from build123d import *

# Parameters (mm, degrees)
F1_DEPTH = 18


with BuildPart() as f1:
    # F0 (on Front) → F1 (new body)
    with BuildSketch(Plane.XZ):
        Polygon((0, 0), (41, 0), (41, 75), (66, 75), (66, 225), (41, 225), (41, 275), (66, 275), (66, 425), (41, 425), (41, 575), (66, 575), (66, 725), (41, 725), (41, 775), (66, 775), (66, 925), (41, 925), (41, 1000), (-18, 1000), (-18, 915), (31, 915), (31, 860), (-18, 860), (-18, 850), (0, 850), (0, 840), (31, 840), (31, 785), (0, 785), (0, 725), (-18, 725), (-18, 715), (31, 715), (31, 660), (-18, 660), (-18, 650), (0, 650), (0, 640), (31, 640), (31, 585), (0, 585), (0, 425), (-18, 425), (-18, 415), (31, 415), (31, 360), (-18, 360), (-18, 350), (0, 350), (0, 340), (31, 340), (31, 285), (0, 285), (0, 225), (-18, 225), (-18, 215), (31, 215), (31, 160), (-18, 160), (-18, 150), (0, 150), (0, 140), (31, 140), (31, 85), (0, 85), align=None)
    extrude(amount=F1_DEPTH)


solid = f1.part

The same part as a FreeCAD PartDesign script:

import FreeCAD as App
import Part
import Sketcher

doc = App.newDocument("Part")
body = doc.addObject("PartDesign::Body", "Body")

# Sketch on XZ plane
sketch1 = body.newObject("Sketcher::SketchObject", "Sketch")
sketch1.AttachmentSupport = (doc.getObject("XZ_Plane"), [""])
sketch1.MapMode = "FlatFace"
sketch1.addGeometry([
    Part.LineSegment(App.Vector(0, 0, 0), App.Vector(41, 0, 0)),  # 0
    Part.LineSegment(App.Vector(41, 0, 0), App.Vector(41, 75, 0)),  # 1
    Part.LineSegment(App.Vector(41, 75, 0), App.Vector(66, 75, 0)),  # 2
    Part.LineSegment(App.Vector(66, 75, 0), App.Vector(66, 225, 0)),  # 3
    Part.LineSegment(App.Vector(66, 225, 0), App.Vector(41, 225, 0)),  # 4
    Part.LineSegment(App.Vector(41, 225, 0), App.Vector(41, 275, 0)),  # 5
    Part.LineSegment(App.Vector(41, 275, 0), App.Vector(66, 275, 0)),  # 6
    Part.LineSegment(App.Vector(66, 275, 0), App.Vector(66, 425, 0)),  # 7
    Part.LineSegment(App.Vector(66, 425, 0), App.Vector(41, 425, 0)),  # 8
    Part.LineSegment(App.Vector(41, 425, 0), App.Vector(41, 575, 0)),  # 9
    Part.LineSegment(App.Vector(41, 575, 0), App.Vector(66, 575, 0)),  # 10
    Part.LineSegment(App.Vector(66, 575, 0), App.Vector(66, 725, 0)),  # 11
    Part.LineSegment(App.Vector(66, 725, 0), App.Vector(41, 725, 0)),  # 12
    Part.LineSegment(App.Vector(41, 725, 0), App.Vector(41, 775, 0)),  # 13
    Part.LineSegment(App.Vector(41, 775, 0), App.Vector(66, 775, 0)),  # 14
    Part.LineSegment(App.Vector(66, 775, 0), App.Vector(66, 925, 0)),  # 15
    Part.LineSegment(App.Vector(66, 925, 0), App.Vector(41, 925, 0)),  # 16
    Part.LineSegment(App.Vector(41, 925, 0), App.Vector(41, 1000, 0)),  # 17
    Part.LineSegment(App.Vector(41, 1000, 0), App.Vector(-18, 1000, 0)),  # 18
    Part.LineSegment(App.Vector(-18, 1000, 0), App.Vector(-18, 915, 0)),  # 19
    Part.LineSegment(App.Vector(-18, 915, 0), App.Vector(31, 915, 0)),  # 20
    Part.LineSegment(App.Vector(31, 915, 0), App.Vector(31, 860, 0)),  # 21
    Part.LineSegment(App.Vector(31, 860, 0), App.Vector(-18, 860, 0)),  # 22
    Part.LineSegment(App.Vector(-18, 860, 0), App.Vector(-18, 850, 0)),  # 23
    Part.LineSegment(App.Vector(-18, 850, 0), App.Vector(0, 850, 0)),  # 24
    Part.LineSegment(App.Vector(0, 850, 0), App.Vector(0, 840, 0)),  # 25
    Part.LineSegment(App.Vector(0, 840, 0), App.Vector(31, 840, 0)),  # 26
    Part.LineSegment(App.Vector(31, 840, 0), App.Vector(31, 785, 0)),  # 27
    Part.LineSegment(App.Vector(31, 785, 0), App.Vector(0, 785, 0)),  # 28
    Part.LineSegment(App.Vector(0, 785, 0), App.Vector(0, 725, 0)),  # 29
    Part.LineSegment(App.Vector(0, 725, 0), App.Vector(-18, 725, 0)),  # 30
    Part.LineSegment(App.Vector(-18, 725, 0), App.Vector(-18, 715, 0)),  # 31
    Part.LineSegment(App.Vector(-18, 715, 0), App.Vector(31, 715, 0)),  # 32
    Part.LineSegment(App.Vector(31, 715, 0), App.Vector(31, 660, 0)),  # 33
    Part.LineSegment(App.Vector(31, 660, 0), App.Vector(-18, 660, 0)),  # 34
    Part.LineSegment(App.Vector(-18, 660, 0), App.Vector(-18, 650, 0)),  # 35
    Part.LineSegment(App.Vector(-18, 650, 0), App.Vector(0, 650, 0)),  # 36
    Part.LineSegment(App.Vector(0, 650, 0), App.Vector(0, 640, 0)),  # 37
    Part.LineSegment(App.Vector(0, 640, 0), App.Vector(31, 640, 0)),  # 38
    Part.LineSegment(App.Vector(31, 640, 0), App.Vector(31, 585, 0)),  # 39
    Part.LineSegment(App.Vector(31, 585, 0), App.Vector(0, 585, 0)),  # 40
    Part.LineSegment(App.Vector(0, 585, 0), App.Vector(0, 425, 0)),  # 41
    Part.LineSegment(App.Vector(0, 425, 0), App.Vector(-18, 425, 0)),  # 42
    Part.LineSegment(App.Vector(-18, 425, 0), App.Vector(-18, 415, 0)),  # 43
    Part.LineSegment(App.Vector(-18, 415, 0), App.Vector(31, 415, 0)),  # 44
    Part.LineSegment(App.Vector(31, 415, 0), App.Vector(31, 360, 0)),  # 45
    Part.LineSegment(App.Vector(31, 360, 0), App.Vector(-18, 360, 0)),  # 46
    Part.LineSegment(App.Vector(-18, 360, 0), App.Vector(-18, 350, 0)),  # 47
    Part.LineSegment(App.Vector(-18, 350, 0), App.Vector(0, 350, 0)),  # 48
    Part.LineSegment(App.Vector(0, 350, 0), App.Vector(0, 340, 0)),  # 49
    Part.LineSegment(App.Vector(0, 340, 0), App.Vector(31, 340, 0)),  # 50
    Part.LineSegment(App.Vector(31, 340, 0), App.Vector(31, 285, 0)),  # 51
    Part.LineSegment(App.Vector(31, 285, 0), App.Vector(0, 285, 0)),  # 52
    Part.LineSegment(App.Vector(0, 285, 0), App.Vector(0, 225, 0)),  # 53
    Part.LineSegment(App.Vector(0, 225, 0), App.Vector(-18, 225, 0)),  # 54
    Part.LineSegment(App.Vector(-18, 225, 0), App.Vector(-18, 215, 0)),  # 55
    Part.LineSegment(App.Vector(-18, 215, 0), App.Vector(31, 215, 0)),  # 56
    Part.LineSegment(App.Vector(31, 215, 0), App.Vector(31, 160, 0)),  # 57
    Part.LineSegment(App.Vector(31, 160, 0), App.Vector(-18, 160, 0)),  # 58
    Part.LineSegment(App.Vector(-18, 160, 0), App.Vector(-18, 150, 0)),  # 59
    Part.LineSegment(App.Vector(-18, 150, 0), App.Vector(0, 150, 0)),  # 60
    Part.LineSegment(App.Vector(0, 150, 0), App.Vector(0, 140, 0)),  # 61
    Part.LineSegment(App.Vector(0, 140, 0), App.Vector(31, 140, 0)),  # 62
    Part.LineSegment(App.Vector(31, 140, 0), App.Vector(31, 85, 0)),  # 63
    Part.LineSegment(App.Vector(31, 85, 0), App.Vector(0, 85, 0)),  # 64
    Part.LineSegment(App.Vector(0, 85, 0), App.Vector(0, 0, 0)),  # 65
], False)
sketch1.addConstraint([
    Sketcher.Constraint("Coincident", 0, 2, 1, 1),
    Sketcher.Constraint("Coincident", 1, 2, 2, 1),
    Sketcher.Constraint("Coincident", 2, 2, 3, 1),
    Sketcher.Constraint("Coincident", 3, 2, 4, 1),
    Sketcher.Constraint("Coincident", 4, 2, 5, 1),
    Sketcher.Constraint("Coincident", 5, 2, 6, 1),
    Sketcher.Constraint("Coincident", 6, 2, 7, 1),
    Sketcher.Constraint("Coincident", 7, 2, 8, 1),
    Sketcher.Constraint("Coincident", 8, 2, 9, 1),
    Sketcher.Constraint("Coincident", 9, 2, 10, 1),
    Sketcher.Constraint("Coincident", 10, 2, 11, 1),
    Sketcher.Constraint("Coincident", 11, 2, 12, 1),
    Sketcher.Constraint("Coincident", 12, 2, 13, 1),
    Sketcher.Constraint("Coincident", 13, 2, 14, 1),
    Sketcher.Constraint("Coincident", 14, 2, 15, 1),
    Sketcher.Constraint("Coincident", 15, 2, 16, 1),
    Sketcher.Constraint("Coincident", 16, 2, 17, 1),
    Sketcher.Constraint("Coincident", 17, 2, 18, 1),
    Sketcher.Constraint("Coincident", 18, 2, 19, 1),
    Sketcher.Constraint("Coincident", 19, 2, 20, 1),
    Sketcher.Constraint("Coincident", 20, 2, 21, 1),
    Sketcher.Constraint("Coincident", 21, 2, 22, 1),
    Sketcher.Constraint("Coincident", 22, 2, 23, 1),
    Sketcher.Constraint("Coincident", 23, 2, 24, 1),
    Sketcher.Constraint("Coincident", 24, 2, 25, 1),
    Sketcher.Constraint("Coincident", 25, 2, 26, 1),
    Sketcher.Constraint("Coincident", 26, 2, 27, 1),
    Sketcher.Constraint("Coincident", 27, 2, 28, 1),
    Sketcher.Constraint("Coincident", 28, 2, 29, 1),
    Sketcher.Constraint("Coincident", 29, 2, 30, 1),
    Sketcher.Constraint("Coincident", 30, 2, 31, 1),
    Sketcher.Constraint("Coincident", 31, 2, 32, 1),
    Sketcher.Constraint("Coincident", 32, 2, 33, 1),
    Sketcher.Constraint("Coincident", 33, 2, 34, 1),
    Sketcher.Constraint("Coincident", 34, 2, 35, 1),
    Sketcher.Constraint("Coincident", 35, 2, 36, 1),
    Sketcher.Constraint("Coincident", 36, 2, 37, 1),
    Sketcher.Constraint("Coincident", 37, 2, 38, 1),
    Sketcher.Constraint("Coincident", 38, 2, 39, 1),
    Sketcher.Constraint("Coincident", 39, 2, 40, 1),
    Sketcher.Constraint("Coincident", 40, 2, 41, 1),
    Sketcher.Constraint("Coincident", 41, 2, 42, 1),
    Sketcher.Constraint("Coincident", 42, 2, 43, 1),
    Sketcher.Constraint("Coincident", 43, 2, 44, 1),
    Sketcher.Constraint("Coincident", 44, 2, 45, 1),
    Sketcher.Constraint("Coincident", 45, 2, 46, 1),
    Sketcher.Constraint("Coincident", 46, 2, 47, 1),
    Sketcher.Constraint("Coincident", 47, 2, 48, 1),
    Sketcher.Constraint("Coincident", 48, 2, 49, 1),
    Sketcher.Constraint("Coincident", 49, 2, 50, 1),
    Sketcher.Constraint("Coincident", 50, 2, 51, 1),
    Sketcher.Constraint("Coincident", 51, 2, 52, 1),
    Sketcher.Constraint("Coincident", 52, 2, 53, 1),
    Sketcher.Constraint("Coincident", 53, 2, 54, 1),
    Sketcher.Constraint("Coincident", 54, 2, 55, 1),
    Sketcher.Constraint("Coincident", 55, 2, 56, 1),
    Sketcher.Constraint("Coincident", 56, 2, 57, 1),
    Sketcher.Constraint("Coincident", 57, 2, 58, 1),
    Sketcher.Constraint("Coincident", 58, 2, 59, 1),
    Sketcher.Constraint("Coincident", 59, 2, 60, 1),
    Sketcher.Constraint("Coincident", 60, 2, 61, 1),
    Sketcher.Constraint("Coincident", 61, 2, 62, 1),
    Sketcher.Constraint("Coincident", 62, 2, 63, 1),
    Sketcher.Constraint("Coincident", 63, 2, 64, 1),
    Sketcher.Constraint("Coincident", 64, 2, 65, 1),
    Sketcher.Constraint("Coincident", 65, 2, 0, 1),
    Sketcher.Constraint("Horizontal", 0),
    Sketcher.Constraint("Vertical", 1),
    Sketcher.Constraint("Horizontal", 2),
    Sketcher.Constraint("Vertical", 3),
    Sketcher.Constraint("Horizontal", 4),
    Sketcher.Constraint("Vertical", 5),
    Sketcher.Constraint("Horizontal", 6),
    Sketcher.Constraint("Vertical", 7),
    Sketcher.Constraint("Horizontal", 8),
    Sketcher.Constraint("Vertical", 9),
    Sketcher.Constraint("Horizontal", 10),
    Sketcher.Constraint("Vertical", 11),
    Sketcher.Constraint("Horizontal", 12),
    Sketcher.Constraint("Vertical", 13),
    Sketcher.Constraint("Horizontal", 14),
    Sketcher.Constraint("Vertical", 15),
    Sketcher.Constraint("Horizontal", 16),
    Sketcher.Constraint("Vertical", 17),
    Sketcher.Constraint("Horizontal", 18),
    Sketcher.Constraint("Vertical", 19),
    Sketcher.Constraint("Horizontal", 20),
    Sketcher.Constraint("Vertical", 21),
    Sketcher.Constraint("Horizontal", 22),
    Sketcher.Constraint("Vertical", 23),
    Sketcher.Constraint("Horizontal", 24),
    Sketcher.Constraint("Vertical", 25),
    Sketcher.Constraint("Horizontal", 26),
    Sketcher.Constraint("Vertical", 27),
    Sketcher.Constraint("Horizontal", 28),
    Sketcher.Constraint("Vertical", 29),
    Sketcher.Constraint("Horizontal", 30),
    Sketcher.Constraint("Vertical", 31),
    Sketcher.Constraint("Horizontal", 32),
    Sketcher.Constraint("Vertical", 33),
    Sketcher.Constraint("Horizontal", 34),
    Sketcher.Constraint("Vertical", 35),
    Sketcher.Constraint("Horizontal", 36),
    Sketcher.Constraint("Vertical", 37),
    Sketcher.Constraint("Horizontal", 38),
    Sketcher.Constraint("Vertical", 39),
    Sketcher.Constraint("Horizontal", 40),
    Sketcher.Constraint("Vertical", 41),
    Sketcher.Constraint("Horizontal", 42),
    Sketcher.Constraint("Vertical", 43),
    Sketcher.Constraint("Horizontal", 44),
    Sketcher.Constraint("Vertical", 45),
    Sketcher.Constraint("Horizontal", 46),
    Sketcher.Constraint("Vertical", 47),
    Sketcher.Constraint("Horizontal", 48),
    Sketcher.Constraint("Vertical", 49),
    Sketcher.Constraint("Horizontal", 50),
    Sketcher.Constraint("Vertical", 51),
    Sketcher.Constraint("Horizontal", 52),
    Sketcher.Constraint("Vertical", 53),
    Sketcher.Constraint("Horizontal", 54),
    Sketcher.Constraint("Vertical", 55),
    Sketcher.Constraint("Horizontal", 56),
    Sketcher.Constraint("Vertical", 57),
    Sketcher.Constraint("Horizontal", 58),
    Sketcher.Constraint("Vertical", 59),
    Sketcher.Constraint("Horizontal", 60),
    Sketcher.Constraint("Vertical", 61),
    Sketcher.Constraint("Horizontal", 62),
    Sketcher.Constraint("Vertical", 63),
    Sketcher.Constraint("Horizontal", 64),
    Sketcher.Constraint("Vertical", 65),
    Sketcher.Constraint("Coincident", 65, 2, -1, 1),
    Sketcher.Constraint("PointOnObject", 24, 2, -2),
    Sketcher.Constraint("PointOnObject", 28, 2, -2),
    Sketcher.Constraint("PointOnObject", 36, 2, -2),
    Sketcher.Constraint("PointOnObject", 40, 2, -2),
    Sketcher.Constraint("PointOnObject", 48, 2, -2),
    Sketcher.Constraint("PointOnObject", 52, 2, -2),
    Sketcher.Constraint("PointOnObject", 60, 2, -2),
    Sketcher.Constraint("Horizontal", 12, 2, 29, 2),
    Sketcher.Constraint("Horizontal", 8, 2, 41, 2),
    Sketcher.Constraint("Horizontal", 4, 2, 53, 2),
    Sketcher.Constraint("Vertical", 1, 2, 4, 2),
    Sketcher.Constraint("Vertical", 3, 2, 6, 2),
    Sketcher.Constraint("Vertical", 5, 2, 8, 2),
    Sketcher.Constraint("Vertical", 7, 2, 10, 2),
    Sketcher.Constraint("Vertical", 9, 2, 12, 2),
    Sketcher.Constraint("Vertical", 11, 2, 14, 2),
    Sketcher.Constraint("Vertical", 13, 2, 16, 2),
    Sketcher.Constraint("Vertical", 19, 2, 22, 2),
    Sketcher.Constraint("Vertical", 21, 2, 26, 2),
    Sketcher.Constraint("Vertical", 23, 2, 30, 2),
    Sketcher.Constraint("Vertical", 27, 2, 32, 2),
    Sketcher.Constraint("Vertical", 31, 2, 34, 2),
    Sketcher.Constraint("Vertical", 33, 2, 38, 2),
    Sketcher.Constraint("Vertical", 35, 2, 42, 2),
    Sketcher.Constraint("Vertical", 39, 2, 44, 2),
    Sketcher.Constraint("Vertical", 43, 2, 46, 2),
    Sketcher.Constraint("Vertical", 45, 2, 50, 2),
    Sketcher.Constraint("Vertical", 47, 2, 54, 2),
    Sketcher.Constraint("Vertical", 51, 2, 56, 2),
    Sketcher.Constraint("Vertical", 55, 2, 58, 2),
    Sketcher.Constraint("Vertical", 57, 2, 62, 2),
    Sketcher.Constraint("Equal", 3, 7),
    Sketcher.Constraint("Equal", 7, 9),
    Sketcher.Constraint("Equal", 9, 11),
    Sketcher.Constraint("Equal", 5, 13),
    Sketcher.Constraint("Equal", 11, 15),
    Sketcher.Constraint("Equal", 1, 17),
    Sketcher.Constraint("Equal", 23, 25),
    Sketcher.Constraint("Equal", 21, 27),
    Sketcher.Constraint("Equal", 25, 31),
    Sketcher.Constraint("Equal", 27, 33),
    Sketcher.Constraint("Equal", 31, 35),
    Sketcher.Constraint("Equal", 35, 37),
    Sketcher.Constraint("Equal", 33, 39),
    Sketcher.Constraint("Equal", 37, 43),
    Sketcher.Constraint("Equal", 39, 45),
    Sketcher.Constraint("Equal", 43, 47),
    Sketcher.Constraint("Equal", 47, 49),
    Sketcher.Constraint("Equal", 45, 51),
    Sketcher.Constraint("Equal", 29, 53),
    Sketcher.Constraint("Equal", 49, 55),
    Sketcher.Constraint("Equal", 51, 57),
    Sketcher.Constraint("Equal", 55, 59),
    Sketcher.Constraint("Equal", 59, 61),
    Sketcher.Constraint("Equal", 57, 63),
    Sketcher.Constraint("Equal", 19, 65),
    Sketcher.Constraint("DistanceX", 0, 1, 0, 2, 41.0),
    Sketcher.Constraint("DistanceX", 2, 1, 2, 2, 25.0),
    Sketcher.Constraint("DistanceX", 18, 2, 18, 1, 59.0),
    Sketcher.Constraint("DistanceX", 20, 1, 20, 2, 49.0),
    Sketcher.Constraint("DistanceY", 1, 1, 1, 2, 75.0),
    Sketcher.Constraint("DistanceY", 3, 1, 3, 2, 150.0),
    Sketcher.Constraint("DistanceY", 5, 1, 5, 2, 50.0),
    Sketcher.Constraint("DistanceY", 19, 2, 19, 1, 85.0),
])
pad1 = body.newObject("PartDesign::Pad", "Pad")
pad1.Profile = sketch1
pad1.Length = 18

doc.recompute()
